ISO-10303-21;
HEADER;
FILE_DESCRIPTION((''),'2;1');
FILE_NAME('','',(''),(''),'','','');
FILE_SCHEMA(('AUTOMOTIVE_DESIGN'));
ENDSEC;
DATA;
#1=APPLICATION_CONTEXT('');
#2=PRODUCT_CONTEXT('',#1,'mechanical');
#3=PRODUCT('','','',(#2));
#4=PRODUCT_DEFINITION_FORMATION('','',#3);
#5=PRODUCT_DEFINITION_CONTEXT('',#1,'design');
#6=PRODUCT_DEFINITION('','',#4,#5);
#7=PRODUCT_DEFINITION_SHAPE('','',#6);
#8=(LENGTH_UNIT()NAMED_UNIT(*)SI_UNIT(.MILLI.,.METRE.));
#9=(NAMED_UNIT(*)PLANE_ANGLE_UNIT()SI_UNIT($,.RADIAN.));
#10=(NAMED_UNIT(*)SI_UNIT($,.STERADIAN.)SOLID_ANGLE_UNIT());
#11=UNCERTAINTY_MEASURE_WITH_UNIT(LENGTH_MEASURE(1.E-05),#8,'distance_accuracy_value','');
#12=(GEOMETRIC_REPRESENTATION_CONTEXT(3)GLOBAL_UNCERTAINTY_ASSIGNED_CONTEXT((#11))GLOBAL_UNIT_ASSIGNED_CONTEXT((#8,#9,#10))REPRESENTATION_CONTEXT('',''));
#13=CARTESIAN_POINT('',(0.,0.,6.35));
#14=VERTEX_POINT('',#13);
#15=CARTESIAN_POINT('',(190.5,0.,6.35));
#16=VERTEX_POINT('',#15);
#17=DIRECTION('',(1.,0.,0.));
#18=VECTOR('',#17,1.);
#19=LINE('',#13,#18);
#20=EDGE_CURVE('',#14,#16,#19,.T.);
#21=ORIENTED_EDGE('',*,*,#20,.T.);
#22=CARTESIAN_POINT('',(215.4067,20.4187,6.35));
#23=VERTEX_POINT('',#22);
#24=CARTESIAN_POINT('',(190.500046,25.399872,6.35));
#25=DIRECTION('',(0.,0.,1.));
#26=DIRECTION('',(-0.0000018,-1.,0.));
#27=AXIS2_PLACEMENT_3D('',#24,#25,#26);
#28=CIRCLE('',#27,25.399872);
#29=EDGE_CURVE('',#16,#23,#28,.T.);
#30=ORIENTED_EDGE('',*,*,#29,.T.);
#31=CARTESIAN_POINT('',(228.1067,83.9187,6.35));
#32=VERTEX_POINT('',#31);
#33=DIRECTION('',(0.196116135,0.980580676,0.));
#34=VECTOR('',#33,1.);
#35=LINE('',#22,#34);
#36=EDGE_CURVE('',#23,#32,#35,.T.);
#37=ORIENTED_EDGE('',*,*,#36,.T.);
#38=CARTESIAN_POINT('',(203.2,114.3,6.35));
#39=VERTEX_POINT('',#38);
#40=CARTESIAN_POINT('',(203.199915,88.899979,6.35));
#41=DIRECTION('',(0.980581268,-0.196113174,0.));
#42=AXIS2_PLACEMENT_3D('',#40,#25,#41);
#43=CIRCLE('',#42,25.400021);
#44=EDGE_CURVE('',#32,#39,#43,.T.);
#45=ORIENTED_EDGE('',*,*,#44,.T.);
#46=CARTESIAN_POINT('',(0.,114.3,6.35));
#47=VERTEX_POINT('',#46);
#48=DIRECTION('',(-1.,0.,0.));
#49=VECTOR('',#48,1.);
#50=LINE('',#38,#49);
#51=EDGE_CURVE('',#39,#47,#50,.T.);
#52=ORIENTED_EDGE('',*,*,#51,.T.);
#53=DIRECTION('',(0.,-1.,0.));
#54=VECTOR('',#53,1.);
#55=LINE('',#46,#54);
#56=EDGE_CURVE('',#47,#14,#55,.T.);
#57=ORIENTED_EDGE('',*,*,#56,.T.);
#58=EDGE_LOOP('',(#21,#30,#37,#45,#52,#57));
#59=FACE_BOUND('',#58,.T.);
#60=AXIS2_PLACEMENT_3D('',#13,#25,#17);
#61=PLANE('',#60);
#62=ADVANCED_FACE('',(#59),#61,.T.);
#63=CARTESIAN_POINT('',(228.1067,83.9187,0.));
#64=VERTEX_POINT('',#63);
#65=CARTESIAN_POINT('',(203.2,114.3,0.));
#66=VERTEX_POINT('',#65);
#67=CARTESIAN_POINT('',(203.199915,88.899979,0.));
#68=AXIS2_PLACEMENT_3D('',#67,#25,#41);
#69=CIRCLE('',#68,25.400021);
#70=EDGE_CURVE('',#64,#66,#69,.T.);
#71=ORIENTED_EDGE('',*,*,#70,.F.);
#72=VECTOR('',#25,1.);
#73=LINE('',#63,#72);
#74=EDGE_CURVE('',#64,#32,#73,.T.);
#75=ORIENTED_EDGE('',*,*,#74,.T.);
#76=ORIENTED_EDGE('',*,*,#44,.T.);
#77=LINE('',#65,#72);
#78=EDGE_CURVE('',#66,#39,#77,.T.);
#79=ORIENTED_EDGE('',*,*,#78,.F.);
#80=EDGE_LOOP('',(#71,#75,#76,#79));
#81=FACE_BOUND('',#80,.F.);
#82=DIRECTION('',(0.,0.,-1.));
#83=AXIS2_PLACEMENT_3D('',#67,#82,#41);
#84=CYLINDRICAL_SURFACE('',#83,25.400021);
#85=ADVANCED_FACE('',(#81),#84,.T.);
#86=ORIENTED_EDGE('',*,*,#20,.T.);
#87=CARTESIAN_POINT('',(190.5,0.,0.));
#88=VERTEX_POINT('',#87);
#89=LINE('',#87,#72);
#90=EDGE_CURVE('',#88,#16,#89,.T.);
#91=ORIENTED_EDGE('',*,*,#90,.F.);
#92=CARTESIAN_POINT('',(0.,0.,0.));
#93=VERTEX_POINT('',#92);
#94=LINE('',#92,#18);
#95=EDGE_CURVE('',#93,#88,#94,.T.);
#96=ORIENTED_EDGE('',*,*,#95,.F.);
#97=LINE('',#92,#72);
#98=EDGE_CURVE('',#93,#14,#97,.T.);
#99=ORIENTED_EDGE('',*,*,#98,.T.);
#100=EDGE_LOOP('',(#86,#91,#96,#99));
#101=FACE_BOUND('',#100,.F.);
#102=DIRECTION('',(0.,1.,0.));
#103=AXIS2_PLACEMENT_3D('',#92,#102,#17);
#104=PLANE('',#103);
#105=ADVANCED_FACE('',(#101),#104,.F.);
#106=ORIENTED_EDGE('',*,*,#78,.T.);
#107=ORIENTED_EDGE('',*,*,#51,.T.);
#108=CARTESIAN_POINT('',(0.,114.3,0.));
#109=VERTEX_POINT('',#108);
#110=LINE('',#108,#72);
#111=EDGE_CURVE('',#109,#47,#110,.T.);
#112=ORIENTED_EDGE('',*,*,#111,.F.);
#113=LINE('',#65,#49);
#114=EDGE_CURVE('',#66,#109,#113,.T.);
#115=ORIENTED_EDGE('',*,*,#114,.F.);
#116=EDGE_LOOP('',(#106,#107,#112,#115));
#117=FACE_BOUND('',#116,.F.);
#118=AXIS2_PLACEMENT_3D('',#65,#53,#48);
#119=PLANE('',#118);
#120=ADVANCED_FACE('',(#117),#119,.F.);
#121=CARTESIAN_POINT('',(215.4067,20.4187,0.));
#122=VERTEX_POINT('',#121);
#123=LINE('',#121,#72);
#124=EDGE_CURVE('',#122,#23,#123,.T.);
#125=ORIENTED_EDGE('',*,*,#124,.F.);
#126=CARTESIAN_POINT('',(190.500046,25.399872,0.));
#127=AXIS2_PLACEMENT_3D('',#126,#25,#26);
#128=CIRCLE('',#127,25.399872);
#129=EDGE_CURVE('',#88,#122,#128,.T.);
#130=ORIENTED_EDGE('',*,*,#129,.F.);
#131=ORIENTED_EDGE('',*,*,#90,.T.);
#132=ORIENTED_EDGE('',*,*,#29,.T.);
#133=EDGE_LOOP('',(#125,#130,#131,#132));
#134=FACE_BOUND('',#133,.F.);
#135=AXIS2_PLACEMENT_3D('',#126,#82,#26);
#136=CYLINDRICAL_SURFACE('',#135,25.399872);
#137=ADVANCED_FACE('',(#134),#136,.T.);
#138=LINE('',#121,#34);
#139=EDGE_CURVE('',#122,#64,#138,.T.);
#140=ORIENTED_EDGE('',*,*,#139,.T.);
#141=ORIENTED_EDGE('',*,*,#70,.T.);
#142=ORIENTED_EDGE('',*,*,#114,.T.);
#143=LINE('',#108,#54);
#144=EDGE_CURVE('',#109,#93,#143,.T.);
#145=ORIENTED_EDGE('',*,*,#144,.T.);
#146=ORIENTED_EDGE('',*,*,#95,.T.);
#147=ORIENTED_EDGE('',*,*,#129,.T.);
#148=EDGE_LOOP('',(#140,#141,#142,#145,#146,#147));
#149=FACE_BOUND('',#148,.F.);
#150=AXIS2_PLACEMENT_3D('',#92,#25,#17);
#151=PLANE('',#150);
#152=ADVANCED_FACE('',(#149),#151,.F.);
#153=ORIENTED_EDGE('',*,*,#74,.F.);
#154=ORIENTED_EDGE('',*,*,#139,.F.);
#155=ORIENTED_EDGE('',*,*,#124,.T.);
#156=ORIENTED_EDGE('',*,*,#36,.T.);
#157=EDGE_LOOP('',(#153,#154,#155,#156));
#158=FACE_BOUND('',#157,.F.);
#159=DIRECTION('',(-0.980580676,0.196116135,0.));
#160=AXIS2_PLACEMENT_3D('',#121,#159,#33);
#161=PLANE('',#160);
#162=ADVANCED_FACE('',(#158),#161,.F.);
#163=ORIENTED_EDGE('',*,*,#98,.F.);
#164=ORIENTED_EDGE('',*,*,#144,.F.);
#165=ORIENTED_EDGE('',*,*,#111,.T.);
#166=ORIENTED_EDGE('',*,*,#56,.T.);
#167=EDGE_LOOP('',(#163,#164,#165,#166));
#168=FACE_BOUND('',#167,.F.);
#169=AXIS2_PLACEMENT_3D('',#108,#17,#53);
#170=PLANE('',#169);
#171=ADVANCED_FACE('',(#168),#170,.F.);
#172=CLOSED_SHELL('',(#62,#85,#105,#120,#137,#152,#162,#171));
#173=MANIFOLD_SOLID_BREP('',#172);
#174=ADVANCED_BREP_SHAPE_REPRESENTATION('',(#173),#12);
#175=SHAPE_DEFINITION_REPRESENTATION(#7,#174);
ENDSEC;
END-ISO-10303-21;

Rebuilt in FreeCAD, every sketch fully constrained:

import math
import FreeCAD as App
import Part
import Sketcher
from FreeCAD import Vector
Q = App.Units.Quantity

doc = App.newDocument("Part")
params = doc.addObject("Spreadsheet::Sheet", "Params")
for row, (alias, value) in enumerate([
    ("sketch1_radius", "1 in"),
    ("sketch1_height", "4.5 in"),
    ("sketch1_width", "8 in"),
    ("sketch1_width2", "7.5 in"),
    ("pad1_length", "0.25 in"),
], start=1):
    params.set(f"A{row}", alias)
    params.set(f"B{row}", "=" + value)
    params.setAlias(f"B{row}", alias)

body = doc.addObject("PartDesign::Body", "Body")

# Sketch on XY plane
sketch1 = body.newObject("Sketcher::SketchObject", "Sketch")
sketch1.AttachmentSupport = (doc.getObject("XY_Plane"), [""])
sketch1.MapMode = "FlatFace"
sketch1.addGeometry(Part.LineSegment(Vector(0, 114.3, 0), Vector(0, 0, 0)), False)
sketch1.addGeometry(Part.LineSegment(Vector(0, 0, 0), Vector(190.5, 0, 0)), False)
sketch1.addGeometry(Part.ArcOfCircle(Part.Circle(Vector(190.5, 25.4, 0), Vector(0, 0, 1), 25.4), math.radians(-90), math.radians(-11.309844)), False)
sketch1.addGeometry(Part.LineSegment(Vector(215.4067, 20.4187, 0), Vector(228.1067, 83.9187, 0)), False)
sketch1.addGeometry(Part.ArcOfCircle(Part.Circle(Vector(203.2, 88.9, 0), Vector(0, 0, 1), 25.399942), math.radians(-11.309844), math.radians(90)), False)
sketch1.addGeometry(Part.LineSegment(Vector(203.2, 114.3, 0), Vector(0, 114.3, 0)), False)
sketch1.addConstraint(Sketcher.Constraint("Coincident", 0, 2, 1, 1))
sketch1.addConstraint(Sketcher.Constraint("Tangent", 1, 2, 2, 1))
sketch1.addConstraint(Sketcher.Constraint("Tangent", 2, 2, 3, 1))
sketch1.addConstraint(Sketcher.Constraint("Tangent", 3, 2, 4, 1))
sketch1.addConstraint(Sketcher.Constraint("Tangent", 4, 2, 5, 1))
sketch1.addConstraint(Sketcher.Constraint("Coincident", 5, 2, 0, 1))
sketch1.addConstraint(Sketcher.Constraint("Vertical", 0))
sketch1.addConstraint(Sketcher.Constraint("Horizontal", 1))
sketch1.addConstraint(Sketcher.Constraint("Horizontal", 5))
sketch1.addConstraint(Sketcher.Constraint("Coincident", 0, 2, -1, 1))
sketch1.addConstraint(Sketcher.Constraint("Equal", 2, 4))
sketch1.addConstraint(Sketcher.Constraint("Radius", 2, Q("1 in")))
sketch1.addConstraint(Sketcher.Constraint("DistanceY", 0, 2, 0, 1, Q("4.5 in")))
sketch1.addConstraint(Sketcher.Constraint("DistanceX", 5, 2, 5, 1, Q("8 in")))
sketch1.addConstraint(Sketcher.Constraint("DistanceX", 1, 1, 1, 2, Q("7.5 in")))
sketch1.setExpression("Constraints[11]", "Params.sketch1_radius")
sketch1.setExpression("Constraints[12]", "Params.sketch1_height")
sketch1.setExpression("Constraints[13]", "Params.sketch1_width")
sketch1.setExpression("Constraints[14]", "Params.sketch1_width2")
pad1 = body.newObject("PartDesign::Pad", "Pad")
pad1.Profile = sketch1
pad1.setExpression("Length", "Params.pad1_length")

doc.recompute()
